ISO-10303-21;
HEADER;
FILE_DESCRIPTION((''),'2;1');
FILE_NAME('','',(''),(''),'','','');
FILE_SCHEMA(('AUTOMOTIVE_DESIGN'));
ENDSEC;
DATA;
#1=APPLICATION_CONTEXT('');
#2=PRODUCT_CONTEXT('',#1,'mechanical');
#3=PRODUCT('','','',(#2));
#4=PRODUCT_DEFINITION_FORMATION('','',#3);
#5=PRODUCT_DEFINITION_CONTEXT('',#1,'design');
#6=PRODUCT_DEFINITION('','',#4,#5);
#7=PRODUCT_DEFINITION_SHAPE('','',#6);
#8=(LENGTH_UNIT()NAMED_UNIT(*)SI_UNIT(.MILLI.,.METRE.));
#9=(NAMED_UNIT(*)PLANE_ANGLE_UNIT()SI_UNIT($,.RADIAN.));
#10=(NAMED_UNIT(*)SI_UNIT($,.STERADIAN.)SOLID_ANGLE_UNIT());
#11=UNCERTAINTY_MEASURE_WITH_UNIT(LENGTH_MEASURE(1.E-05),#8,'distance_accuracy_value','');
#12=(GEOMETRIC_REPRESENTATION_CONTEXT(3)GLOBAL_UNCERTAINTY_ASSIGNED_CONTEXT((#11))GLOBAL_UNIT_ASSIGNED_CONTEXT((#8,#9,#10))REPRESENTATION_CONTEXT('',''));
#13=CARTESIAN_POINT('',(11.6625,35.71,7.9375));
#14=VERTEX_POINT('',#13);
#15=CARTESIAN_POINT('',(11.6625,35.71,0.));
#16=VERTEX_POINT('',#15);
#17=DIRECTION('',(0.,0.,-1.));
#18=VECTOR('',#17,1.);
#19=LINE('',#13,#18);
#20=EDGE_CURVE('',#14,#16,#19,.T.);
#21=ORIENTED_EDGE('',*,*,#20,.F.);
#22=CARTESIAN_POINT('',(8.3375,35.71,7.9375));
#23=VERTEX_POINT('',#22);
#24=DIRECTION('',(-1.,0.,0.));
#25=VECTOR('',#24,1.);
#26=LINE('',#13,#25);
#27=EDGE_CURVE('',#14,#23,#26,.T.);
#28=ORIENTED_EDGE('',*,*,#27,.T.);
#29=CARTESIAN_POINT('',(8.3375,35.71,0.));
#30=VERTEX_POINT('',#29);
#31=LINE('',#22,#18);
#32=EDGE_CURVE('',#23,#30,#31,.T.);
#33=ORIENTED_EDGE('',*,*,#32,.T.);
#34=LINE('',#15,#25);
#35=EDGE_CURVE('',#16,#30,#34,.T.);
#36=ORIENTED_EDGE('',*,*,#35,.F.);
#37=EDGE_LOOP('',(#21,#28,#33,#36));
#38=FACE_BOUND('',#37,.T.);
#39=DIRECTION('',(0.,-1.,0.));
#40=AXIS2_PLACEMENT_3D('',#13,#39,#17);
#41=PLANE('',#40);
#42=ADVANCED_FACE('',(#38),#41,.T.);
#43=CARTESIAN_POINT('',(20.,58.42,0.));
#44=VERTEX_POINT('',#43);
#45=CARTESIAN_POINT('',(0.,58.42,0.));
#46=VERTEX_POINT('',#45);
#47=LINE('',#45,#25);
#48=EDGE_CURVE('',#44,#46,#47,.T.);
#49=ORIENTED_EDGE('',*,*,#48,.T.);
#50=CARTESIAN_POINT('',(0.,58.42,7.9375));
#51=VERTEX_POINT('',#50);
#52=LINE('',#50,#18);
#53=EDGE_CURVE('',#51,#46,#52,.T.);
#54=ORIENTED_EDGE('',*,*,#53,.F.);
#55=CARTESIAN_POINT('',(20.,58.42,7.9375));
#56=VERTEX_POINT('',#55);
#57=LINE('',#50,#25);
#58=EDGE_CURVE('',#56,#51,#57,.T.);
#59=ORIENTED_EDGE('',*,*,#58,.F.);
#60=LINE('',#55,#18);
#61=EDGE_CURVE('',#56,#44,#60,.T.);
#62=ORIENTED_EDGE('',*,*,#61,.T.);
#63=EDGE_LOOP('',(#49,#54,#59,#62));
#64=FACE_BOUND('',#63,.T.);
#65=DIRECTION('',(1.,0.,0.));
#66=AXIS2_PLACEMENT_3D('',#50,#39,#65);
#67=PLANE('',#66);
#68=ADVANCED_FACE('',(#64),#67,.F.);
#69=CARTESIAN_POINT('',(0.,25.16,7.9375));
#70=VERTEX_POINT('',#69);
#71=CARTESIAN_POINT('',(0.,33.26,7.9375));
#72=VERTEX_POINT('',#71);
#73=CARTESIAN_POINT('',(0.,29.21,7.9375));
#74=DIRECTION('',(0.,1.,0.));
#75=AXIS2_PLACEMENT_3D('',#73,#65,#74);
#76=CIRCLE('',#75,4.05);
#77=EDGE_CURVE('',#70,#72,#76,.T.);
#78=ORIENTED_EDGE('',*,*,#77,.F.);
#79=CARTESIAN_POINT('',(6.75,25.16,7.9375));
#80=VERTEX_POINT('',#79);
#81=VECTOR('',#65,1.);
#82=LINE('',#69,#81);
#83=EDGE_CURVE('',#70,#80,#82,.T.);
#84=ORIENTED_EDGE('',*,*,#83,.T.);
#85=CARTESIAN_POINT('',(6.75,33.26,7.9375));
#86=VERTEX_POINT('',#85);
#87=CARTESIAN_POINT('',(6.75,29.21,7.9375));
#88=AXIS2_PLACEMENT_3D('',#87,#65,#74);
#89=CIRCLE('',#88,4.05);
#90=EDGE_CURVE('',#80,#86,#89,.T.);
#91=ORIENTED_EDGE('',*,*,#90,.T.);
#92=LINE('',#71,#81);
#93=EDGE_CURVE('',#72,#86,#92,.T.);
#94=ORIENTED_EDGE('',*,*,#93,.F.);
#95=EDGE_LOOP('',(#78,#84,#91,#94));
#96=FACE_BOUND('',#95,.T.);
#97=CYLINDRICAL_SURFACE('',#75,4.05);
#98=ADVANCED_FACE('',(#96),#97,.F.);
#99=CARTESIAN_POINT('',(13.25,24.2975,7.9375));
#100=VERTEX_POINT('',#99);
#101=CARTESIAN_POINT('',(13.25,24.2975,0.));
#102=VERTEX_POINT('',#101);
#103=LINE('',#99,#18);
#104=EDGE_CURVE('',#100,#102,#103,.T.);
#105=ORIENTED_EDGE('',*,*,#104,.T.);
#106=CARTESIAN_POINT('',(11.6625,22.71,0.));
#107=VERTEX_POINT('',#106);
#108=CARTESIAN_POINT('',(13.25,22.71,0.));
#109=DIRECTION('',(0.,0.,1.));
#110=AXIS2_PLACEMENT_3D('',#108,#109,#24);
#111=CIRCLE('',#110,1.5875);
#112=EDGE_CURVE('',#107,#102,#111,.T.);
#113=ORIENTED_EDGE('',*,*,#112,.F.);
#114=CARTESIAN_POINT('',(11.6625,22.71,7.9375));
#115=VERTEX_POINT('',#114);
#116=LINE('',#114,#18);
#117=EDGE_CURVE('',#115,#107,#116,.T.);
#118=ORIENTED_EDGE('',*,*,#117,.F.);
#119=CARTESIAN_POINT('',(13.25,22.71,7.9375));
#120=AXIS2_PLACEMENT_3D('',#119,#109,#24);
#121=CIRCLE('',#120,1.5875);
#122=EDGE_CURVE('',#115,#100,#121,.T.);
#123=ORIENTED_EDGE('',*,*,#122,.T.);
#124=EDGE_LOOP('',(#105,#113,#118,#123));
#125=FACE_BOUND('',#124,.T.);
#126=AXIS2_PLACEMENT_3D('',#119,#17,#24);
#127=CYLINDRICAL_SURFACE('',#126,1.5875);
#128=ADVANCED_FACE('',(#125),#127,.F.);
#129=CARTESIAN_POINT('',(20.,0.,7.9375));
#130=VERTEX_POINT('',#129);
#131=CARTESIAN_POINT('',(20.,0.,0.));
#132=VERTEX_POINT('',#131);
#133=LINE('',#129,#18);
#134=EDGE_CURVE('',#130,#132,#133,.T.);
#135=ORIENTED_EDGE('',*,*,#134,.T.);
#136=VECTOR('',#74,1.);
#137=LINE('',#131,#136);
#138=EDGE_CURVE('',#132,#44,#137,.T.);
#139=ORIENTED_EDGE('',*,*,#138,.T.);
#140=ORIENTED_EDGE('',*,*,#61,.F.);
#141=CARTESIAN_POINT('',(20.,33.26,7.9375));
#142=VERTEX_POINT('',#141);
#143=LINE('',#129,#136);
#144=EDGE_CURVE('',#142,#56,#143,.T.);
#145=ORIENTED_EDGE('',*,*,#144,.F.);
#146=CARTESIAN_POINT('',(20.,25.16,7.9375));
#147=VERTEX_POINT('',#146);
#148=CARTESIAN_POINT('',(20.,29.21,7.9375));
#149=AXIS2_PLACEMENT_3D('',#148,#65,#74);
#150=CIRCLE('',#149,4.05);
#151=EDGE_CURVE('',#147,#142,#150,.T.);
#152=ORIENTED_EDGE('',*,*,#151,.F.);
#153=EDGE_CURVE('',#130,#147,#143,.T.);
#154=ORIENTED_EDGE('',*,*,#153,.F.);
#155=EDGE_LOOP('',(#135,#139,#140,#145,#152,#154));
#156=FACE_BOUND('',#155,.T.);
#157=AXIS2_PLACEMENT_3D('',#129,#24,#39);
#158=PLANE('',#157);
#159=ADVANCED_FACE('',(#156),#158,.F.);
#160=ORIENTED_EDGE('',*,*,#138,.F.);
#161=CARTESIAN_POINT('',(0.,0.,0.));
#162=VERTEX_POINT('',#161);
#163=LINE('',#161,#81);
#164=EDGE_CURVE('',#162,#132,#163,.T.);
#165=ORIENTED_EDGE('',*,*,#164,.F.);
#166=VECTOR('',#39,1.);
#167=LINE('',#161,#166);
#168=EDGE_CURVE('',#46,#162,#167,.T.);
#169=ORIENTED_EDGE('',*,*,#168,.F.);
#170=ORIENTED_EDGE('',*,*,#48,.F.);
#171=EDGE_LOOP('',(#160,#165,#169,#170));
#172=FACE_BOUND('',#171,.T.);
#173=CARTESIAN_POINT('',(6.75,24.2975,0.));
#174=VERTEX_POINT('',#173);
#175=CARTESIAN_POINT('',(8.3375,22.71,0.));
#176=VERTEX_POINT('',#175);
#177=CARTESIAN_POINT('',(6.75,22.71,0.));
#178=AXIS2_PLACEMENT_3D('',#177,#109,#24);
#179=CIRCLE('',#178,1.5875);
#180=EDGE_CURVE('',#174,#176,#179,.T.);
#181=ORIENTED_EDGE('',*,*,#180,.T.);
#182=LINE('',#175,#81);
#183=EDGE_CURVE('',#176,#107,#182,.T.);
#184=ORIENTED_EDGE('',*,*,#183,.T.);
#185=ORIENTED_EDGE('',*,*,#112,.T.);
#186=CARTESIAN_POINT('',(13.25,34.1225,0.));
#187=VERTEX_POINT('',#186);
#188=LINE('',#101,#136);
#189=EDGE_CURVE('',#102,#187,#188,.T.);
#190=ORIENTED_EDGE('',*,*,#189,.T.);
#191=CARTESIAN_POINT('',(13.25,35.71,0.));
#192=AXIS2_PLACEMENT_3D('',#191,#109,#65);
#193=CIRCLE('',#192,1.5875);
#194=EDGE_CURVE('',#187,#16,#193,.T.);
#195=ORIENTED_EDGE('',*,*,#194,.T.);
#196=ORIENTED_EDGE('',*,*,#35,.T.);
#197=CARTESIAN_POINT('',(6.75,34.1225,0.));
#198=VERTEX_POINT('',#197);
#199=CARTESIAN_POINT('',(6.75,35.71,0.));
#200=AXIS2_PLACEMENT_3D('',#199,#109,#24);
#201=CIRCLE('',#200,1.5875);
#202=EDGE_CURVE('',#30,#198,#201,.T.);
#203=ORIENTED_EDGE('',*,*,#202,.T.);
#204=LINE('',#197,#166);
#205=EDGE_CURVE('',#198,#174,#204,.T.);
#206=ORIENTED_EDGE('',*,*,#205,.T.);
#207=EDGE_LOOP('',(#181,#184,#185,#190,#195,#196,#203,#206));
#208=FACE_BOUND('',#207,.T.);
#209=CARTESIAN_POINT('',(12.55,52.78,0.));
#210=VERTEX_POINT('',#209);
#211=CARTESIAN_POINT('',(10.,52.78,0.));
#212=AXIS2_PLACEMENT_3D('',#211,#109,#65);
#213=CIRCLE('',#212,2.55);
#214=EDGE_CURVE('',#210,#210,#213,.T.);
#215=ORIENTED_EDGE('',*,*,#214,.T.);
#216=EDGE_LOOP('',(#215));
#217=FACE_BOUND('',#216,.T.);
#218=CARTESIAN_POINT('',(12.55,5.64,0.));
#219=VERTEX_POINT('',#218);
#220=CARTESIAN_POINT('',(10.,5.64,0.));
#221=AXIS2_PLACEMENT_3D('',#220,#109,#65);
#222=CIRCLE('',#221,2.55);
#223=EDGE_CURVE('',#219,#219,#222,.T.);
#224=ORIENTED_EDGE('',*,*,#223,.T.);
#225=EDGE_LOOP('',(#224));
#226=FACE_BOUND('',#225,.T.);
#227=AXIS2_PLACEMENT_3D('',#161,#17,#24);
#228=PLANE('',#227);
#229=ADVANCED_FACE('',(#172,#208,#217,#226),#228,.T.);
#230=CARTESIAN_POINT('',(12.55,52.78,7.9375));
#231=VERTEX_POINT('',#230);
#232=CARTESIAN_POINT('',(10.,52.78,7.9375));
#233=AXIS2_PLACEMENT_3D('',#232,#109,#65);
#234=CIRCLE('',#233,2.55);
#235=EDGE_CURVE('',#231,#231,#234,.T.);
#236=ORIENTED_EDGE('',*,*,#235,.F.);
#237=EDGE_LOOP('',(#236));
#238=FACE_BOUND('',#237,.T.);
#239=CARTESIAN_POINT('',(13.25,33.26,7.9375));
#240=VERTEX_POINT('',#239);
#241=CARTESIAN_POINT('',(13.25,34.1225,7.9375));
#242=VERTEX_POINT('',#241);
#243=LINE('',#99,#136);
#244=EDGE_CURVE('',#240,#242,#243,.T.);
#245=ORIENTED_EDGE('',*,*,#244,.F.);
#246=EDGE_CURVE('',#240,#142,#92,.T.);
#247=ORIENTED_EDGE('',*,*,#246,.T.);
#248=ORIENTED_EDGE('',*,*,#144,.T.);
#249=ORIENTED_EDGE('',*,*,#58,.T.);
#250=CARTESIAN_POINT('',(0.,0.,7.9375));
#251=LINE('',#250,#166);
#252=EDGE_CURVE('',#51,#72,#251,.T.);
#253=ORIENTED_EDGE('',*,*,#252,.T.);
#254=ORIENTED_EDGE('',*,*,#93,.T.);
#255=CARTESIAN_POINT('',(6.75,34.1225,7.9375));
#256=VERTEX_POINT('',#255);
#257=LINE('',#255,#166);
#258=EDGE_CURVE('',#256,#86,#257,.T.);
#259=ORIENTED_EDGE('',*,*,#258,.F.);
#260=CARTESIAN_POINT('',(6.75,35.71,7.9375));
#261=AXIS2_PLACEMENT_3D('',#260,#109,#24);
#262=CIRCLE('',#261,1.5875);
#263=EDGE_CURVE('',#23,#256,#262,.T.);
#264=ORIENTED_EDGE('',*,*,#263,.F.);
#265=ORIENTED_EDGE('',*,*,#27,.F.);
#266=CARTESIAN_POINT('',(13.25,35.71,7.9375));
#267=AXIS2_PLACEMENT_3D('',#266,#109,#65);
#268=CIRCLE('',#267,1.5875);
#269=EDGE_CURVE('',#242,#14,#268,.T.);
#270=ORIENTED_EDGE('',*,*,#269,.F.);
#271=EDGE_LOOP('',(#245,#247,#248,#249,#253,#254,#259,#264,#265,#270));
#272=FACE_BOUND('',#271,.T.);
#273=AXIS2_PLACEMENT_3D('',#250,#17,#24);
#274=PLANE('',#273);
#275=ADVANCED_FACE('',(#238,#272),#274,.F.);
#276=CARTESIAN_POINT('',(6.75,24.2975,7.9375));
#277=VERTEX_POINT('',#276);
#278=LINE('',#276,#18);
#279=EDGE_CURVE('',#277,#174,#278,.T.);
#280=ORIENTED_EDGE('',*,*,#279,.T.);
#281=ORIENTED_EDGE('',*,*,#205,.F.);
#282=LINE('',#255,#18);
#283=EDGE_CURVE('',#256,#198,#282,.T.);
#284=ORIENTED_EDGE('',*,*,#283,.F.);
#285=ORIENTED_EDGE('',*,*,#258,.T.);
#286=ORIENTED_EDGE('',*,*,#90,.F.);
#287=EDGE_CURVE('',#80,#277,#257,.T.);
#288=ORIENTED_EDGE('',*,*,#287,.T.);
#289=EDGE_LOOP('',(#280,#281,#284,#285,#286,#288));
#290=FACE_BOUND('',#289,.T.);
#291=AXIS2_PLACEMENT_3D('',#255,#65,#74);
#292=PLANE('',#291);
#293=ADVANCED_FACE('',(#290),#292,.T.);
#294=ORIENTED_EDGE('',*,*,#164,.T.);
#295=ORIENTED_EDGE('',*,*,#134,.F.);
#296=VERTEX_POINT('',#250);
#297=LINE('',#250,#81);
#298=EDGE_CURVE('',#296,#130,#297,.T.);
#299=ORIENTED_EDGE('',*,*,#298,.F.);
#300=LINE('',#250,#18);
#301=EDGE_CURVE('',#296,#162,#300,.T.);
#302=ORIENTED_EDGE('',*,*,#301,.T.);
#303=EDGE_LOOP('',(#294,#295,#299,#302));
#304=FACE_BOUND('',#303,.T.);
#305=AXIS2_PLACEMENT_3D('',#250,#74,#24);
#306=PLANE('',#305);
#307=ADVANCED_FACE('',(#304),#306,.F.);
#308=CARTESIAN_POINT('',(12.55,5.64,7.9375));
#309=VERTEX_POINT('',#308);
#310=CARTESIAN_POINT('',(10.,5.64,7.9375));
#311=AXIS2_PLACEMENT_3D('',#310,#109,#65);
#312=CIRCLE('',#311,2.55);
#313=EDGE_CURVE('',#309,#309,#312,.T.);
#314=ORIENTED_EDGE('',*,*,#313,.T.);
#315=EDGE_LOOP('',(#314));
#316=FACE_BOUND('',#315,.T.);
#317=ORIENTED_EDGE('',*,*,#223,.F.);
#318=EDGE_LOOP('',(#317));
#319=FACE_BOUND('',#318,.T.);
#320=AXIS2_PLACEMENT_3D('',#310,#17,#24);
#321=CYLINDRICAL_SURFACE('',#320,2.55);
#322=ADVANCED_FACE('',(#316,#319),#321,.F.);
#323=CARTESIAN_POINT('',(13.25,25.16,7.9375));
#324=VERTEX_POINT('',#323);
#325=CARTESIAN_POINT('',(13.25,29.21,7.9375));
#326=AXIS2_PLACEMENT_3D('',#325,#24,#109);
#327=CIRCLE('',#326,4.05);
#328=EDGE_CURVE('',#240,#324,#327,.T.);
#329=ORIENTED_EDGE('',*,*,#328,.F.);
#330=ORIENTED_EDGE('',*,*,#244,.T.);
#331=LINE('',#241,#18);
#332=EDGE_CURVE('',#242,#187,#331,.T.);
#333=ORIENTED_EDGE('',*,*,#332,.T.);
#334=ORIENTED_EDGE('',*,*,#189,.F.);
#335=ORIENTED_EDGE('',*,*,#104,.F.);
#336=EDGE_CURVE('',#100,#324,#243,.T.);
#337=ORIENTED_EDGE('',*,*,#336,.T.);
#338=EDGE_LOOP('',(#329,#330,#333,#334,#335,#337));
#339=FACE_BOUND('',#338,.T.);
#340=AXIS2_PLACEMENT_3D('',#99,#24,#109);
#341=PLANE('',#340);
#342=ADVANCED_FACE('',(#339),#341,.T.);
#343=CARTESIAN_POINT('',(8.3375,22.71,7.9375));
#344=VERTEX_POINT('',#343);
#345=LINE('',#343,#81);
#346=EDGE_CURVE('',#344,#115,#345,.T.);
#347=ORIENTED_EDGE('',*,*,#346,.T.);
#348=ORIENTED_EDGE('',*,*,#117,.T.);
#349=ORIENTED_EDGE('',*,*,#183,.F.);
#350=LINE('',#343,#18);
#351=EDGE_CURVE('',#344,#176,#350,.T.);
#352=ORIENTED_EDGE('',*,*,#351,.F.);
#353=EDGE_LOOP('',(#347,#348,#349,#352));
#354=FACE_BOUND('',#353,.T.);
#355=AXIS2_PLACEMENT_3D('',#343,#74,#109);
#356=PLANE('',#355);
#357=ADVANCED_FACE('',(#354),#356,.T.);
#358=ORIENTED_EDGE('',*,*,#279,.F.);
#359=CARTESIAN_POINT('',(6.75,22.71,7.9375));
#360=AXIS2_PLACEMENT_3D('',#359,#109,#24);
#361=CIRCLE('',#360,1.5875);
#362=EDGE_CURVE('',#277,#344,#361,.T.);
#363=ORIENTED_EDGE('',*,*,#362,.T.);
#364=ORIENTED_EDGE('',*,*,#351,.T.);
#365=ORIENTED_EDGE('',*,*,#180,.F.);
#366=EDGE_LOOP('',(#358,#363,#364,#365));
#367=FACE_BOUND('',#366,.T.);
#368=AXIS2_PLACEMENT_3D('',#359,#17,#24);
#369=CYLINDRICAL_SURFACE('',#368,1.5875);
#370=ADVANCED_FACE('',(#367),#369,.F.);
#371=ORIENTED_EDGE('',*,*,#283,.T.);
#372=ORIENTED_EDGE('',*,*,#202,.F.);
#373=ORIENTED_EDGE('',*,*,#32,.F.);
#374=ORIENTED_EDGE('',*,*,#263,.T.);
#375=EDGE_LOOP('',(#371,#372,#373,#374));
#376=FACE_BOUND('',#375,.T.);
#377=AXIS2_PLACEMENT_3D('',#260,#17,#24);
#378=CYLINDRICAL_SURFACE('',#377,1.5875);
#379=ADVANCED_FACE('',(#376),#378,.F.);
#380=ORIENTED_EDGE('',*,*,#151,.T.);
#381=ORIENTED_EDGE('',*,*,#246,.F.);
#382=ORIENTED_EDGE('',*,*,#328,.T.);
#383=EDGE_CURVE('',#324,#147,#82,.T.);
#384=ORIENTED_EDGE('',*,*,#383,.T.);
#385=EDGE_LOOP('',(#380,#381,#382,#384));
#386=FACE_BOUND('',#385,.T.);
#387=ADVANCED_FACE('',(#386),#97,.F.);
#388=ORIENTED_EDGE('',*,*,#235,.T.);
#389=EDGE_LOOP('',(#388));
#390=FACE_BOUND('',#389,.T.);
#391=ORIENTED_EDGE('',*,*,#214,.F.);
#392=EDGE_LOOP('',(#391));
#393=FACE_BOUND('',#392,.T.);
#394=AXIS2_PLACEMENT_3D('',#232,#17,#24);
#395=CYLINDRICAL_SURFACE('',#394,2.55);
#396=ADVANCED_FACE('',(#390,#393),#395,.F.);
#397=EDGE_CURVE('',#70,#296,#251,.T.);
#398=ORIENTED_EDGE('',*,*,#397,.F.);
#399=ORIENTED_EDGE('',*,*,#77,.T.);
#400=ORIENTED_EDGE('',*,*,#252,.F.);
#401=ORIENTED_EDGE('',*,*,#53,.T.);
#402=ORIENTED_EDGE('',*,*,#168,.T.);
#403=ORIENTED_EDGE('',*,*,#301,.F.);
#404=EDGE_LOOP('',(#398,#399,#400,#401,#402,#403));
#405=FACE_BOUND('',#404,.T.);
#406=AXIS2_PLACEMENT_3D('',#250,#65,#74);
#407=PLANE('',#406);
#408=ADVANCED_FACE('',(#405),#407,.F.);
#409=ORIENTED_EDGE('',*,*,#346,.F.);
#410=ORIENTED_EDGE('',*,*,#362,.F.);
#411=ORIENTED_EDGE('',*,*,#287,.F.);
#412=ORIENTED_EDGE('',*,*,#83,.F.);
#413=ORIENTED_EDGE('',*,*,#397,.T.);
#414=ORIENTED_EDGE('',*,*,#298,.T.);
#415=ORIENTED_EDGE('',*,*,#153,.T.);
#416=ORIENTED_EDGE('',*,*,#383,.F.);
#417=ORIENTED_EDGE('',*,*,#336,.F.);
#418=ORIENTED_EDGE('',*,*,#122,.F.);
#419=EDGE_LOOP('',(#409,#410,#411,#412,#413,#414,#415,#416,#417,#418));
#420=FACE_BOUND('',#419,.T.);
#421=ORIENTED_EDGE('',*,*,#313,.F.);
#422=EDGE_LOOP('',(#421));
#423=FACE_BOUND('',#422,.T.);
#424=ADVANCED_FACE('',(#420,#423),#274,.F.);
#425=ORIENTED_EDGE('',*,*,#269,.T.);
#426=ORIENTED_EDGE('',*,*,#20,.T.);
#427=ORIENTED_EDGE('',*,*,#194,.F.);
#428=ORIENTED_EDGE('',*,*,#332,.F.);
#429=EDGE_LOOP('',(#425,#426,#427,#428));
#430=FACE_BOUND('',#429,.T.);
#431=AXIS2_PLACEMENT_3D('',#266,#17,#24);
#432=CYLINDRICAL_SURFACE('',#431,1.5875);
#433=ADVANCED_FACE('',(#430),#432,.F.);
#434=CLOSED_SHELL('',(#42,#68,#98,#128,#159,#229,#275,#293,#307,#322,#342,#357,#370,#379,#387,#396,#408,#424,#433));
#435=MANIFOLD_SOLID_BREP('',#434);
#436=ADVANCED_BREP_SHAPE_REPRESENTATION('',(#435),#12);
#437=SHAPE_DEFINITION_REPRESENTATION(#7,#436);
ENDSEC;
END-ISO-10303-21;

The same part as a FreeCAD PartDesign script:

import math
import FreeCAD as App
import Part
import Sketcher
Q = App.Units.Quantity


def add_polygon(sketch, points):
    """Adds a closed chain of lines whose ends are joined by coincident constraints."""
    first, n = sketch.GeometryCount, len(points)
    for a, b in zip(points, points[1:] + points[:1]):
        sketch.addGeometry(Part.LineSegment(App.Vector(*a, 0), App.Vector(*b, 0)), False)
    for i in range(n):
        sketch.addConstraint(Sketcher.Constraint("Coincident", first + i, 2, first + (i + 1) % n, 1))

doc = App.newDocument("Part")
body = doc.addObject("PartDesign::Body", "Body")

sketch1 = doc.addObject("Sketcher::SketchObject", "Sketch")
body.addObject(sketch1)
sketch1.AttachmentSupport = (doc.XY_Plane, [""])
sketch1.MapMode = "FlatFace"
add_polygon(sketch1, [(0, 58.4), (0, 0), (20, 0), (20, 58.4)])
sketch1.addGeometry(Part.Circle(App.Vector(10, 5.6, 0), App.Vector(0, 0, 1), 2.5), False)
sketch1.addGeometry(Part.LineSegment(App.Vector(13.2, 34.1, 0), App.Vector(13.2, 24.3, 0)), False)
sketch1.addGeometry(Part.ArcOfCircle(Part.Circle(App.Vector(13.2, 22.7, 0), App.Vector(0, 0, 1), 1.6), math.radians(180), math.radians(450)), False)
sketch1.addGeometry(Part.LineSegment(App.Vector(11.7, 22.7, 0), App.Vector(8.3, 22.7, 0)), False)
sketch1.addGeometry(Part.ArcOfCircle(Part.Circle(App.Vector(6.8, 22.7, 0), App.Vector(0, 0, 1), 1.6), math.radians(90), math.radians(360)), False)
sketch1.addGeometry(Part.LineSegment(App.Vector(6.8, 24.3, 0), App.Vector(6.8, 34.1, 0)), False)
sketch1.addGeometry(Part.ArcOfCircle(Part.Circle(App.Vector(6.8, 35.7, 0), App.Vector(0, 0, 1), 1.6), math.radians(0), math.radians(270)), False)
sketch1.addGeometry(Part.LineSegment(App.Vector(8.3, 35.7, 0), App.Vector(11.7, 35.7, 0)), False)
sketch1.addGeometry(Part.ArcOfCircle(Part.Circle(App.Vector(13.2, 35.7, 0), App.Vector(0, 0, 1), 1.6), math.radians(-90), math.radians(180)), False)
sketch1.addGeometry(Part.Circle(App.Vector(10, 52.8, 0), App.Vector(0, 0, 1), 2.5), False)
sketch1.addConstraint([
    Sketcher.Constraint("Coincident", 5, 2, 6, 2),
    Sketcher.Constraint("Coincident", 6, 1, 7, 1),
    Sketcher.Constraint("Coincident", 7, 2, 8, 2),
    Sketcher.Constraint("Coincident", 8, 1, 9, 1),
    Sketcher.Constraint("Coincident", 9, 2, 10, 2),
    Sketcher.Constraint("Coincident", 10, 1, 11, 1),
    Sketcher.Constraint("Coincident", 11, 2, 12, 2),
    Sketcher.Constraint("Coincident", 12, 1, 5, 1),
    Sketcher.Constraint("Vertical", 0),
    Sketcher.Constraint("Horizontal", 1),
    Sketcher.Constraint("Vertical", 2),
    Sketcher.Constraint("Horizontal", 3),
    Sketcher.Constraint("Vertical", 5),
    Sketcher.Constraint("Horizontal", 7),
    Sketcher.Constraint("Vertical", 9),
    Sketcher.Constraint("Horizontal", 11),
    Sketcher.Constraint("Coincident", 0, 2, -1, 1),
    Sketcher.Constraint("Equal", 6, 8),
    Sketcher.Constraint("Equal", 8, 10),
    Sketcher.Constraint("Equal", 10, 12),
    Sketcher.Constraint("Equal", 4, 13),
    Sketcher.Constraint("Horizontal", 6, 3, 8, 3),
    Sketcher.Constraint("Horizontal", 10, 3, 12, 3),
    Sketcher.Constraint("Horizontal", 8, 3, 6, 1),
    Sketcher.Constraint("Horizontal", 12, 3, 10, 1),
    Sketcher.Constraint("Vertical", 8, 3, 10, 3),
    Sketcher.Constraint("Vertical", 6, 3, 12, 3),
    Sketcher.Constraint("Vertical", 4, 3, 13, 3),
    Sketcher.Constraint("Vertical", 12, 3, 5, 2),
    Sketcher.Constraint("Vertical", 10, 3, 8, 1),
    Sketcher.Constraint("Diameter", 4, Q("5.1 mm")),
    Sketcher.Constraint("DistanceX", 1, 1, 1, 2, Q("20 mm")),
    Sketcher.Constraint("DistanceX", -1, 1, 4, 3, Q("10 mm")),
    Sketcher.Constraint("DistanceY", 8, 3, 10, 3, Q("13 mm")),
    Sketcher.Constraint("DistanceY", 0, 2, 0, 1, Q("58.42 mm")),
    Sketcher.Constraint("Radius", 6, Q("1.5875 mm")),
    Sketcher.Constraint("DistanceX", 8, 3, 6, 3, Q("6.5 mm")),
    Sketcher.Constraint("DistanceY", -1, 1, 4, 3, Q("5.64 mm")),
    Sketcher.Constraint("DistanceX", -1, 1, 6, 3, Q("13.25 mm")),
    Sketcher.Constraint("DistanceY", -1, 1, 6, 3, Q("22.71 mm")),
    Sketcher.Constraint("DistanceY", -1, 1, 13, 3, Q("52.78 mm")),
])
pad1 = doc.addObject("PartDesign::Pad", "Pad")
body.addObject(pad1)
pad1.Profile = sketch1
pad1.Length = 7.9375

sketch2 = doc.addObject("Sketcher::SketchObject", "Sketch001")
body.addObject(sketch2)
sketch2.AttachmentSupport = (doc.YZ_Plane, [""])
sketch2.MapMode = "FlatFace"
sketch2.AttachmentOffset = App.Placement(App.Vector(0, 0, 20), App.Rotation())
sketch2.addGeometry([
    Part.LineSegment(App.Vector(33.3, 7.9, 0), App.Vector(25.2, 7.9, 0)),
    Part.ArcOfCircle(Part.Circle(App.Vector(29.2, 7.9, 0), App.Vector(0, 0, 1), 4), math.radians(180), math.radians(360)),
], False)
sketch2.addConstraint([
    Sketcher.Constraint("Coincident", 0, 1, 1, 2),
    Sketcher.Constraint("Coincident", 1, 1, 0, 2),
    Sketcher.Constraint("Horizontal", 0),
    Sketcher.Constraint("Horizontal", 1, 3, 0, 1),
    Sketcher.Constraint("Radius", 1, Q("4.05 mm")),
    Sketcher.Constraint("DistanceX", -1, 1, 1, 3, Q("29.21 mm")),
    Sketcher.Constraint("DistanceY", -1, 1, 1, 3, Q("7.9375 mm")),
])
pocket1 = doc.addObject("PartDesign::Pocket", "Pocket")
body.addObject(pocket1)
pocket1.Profile = sketch2
pocket1.Type = "ThroughAll"

doc.recompute()
